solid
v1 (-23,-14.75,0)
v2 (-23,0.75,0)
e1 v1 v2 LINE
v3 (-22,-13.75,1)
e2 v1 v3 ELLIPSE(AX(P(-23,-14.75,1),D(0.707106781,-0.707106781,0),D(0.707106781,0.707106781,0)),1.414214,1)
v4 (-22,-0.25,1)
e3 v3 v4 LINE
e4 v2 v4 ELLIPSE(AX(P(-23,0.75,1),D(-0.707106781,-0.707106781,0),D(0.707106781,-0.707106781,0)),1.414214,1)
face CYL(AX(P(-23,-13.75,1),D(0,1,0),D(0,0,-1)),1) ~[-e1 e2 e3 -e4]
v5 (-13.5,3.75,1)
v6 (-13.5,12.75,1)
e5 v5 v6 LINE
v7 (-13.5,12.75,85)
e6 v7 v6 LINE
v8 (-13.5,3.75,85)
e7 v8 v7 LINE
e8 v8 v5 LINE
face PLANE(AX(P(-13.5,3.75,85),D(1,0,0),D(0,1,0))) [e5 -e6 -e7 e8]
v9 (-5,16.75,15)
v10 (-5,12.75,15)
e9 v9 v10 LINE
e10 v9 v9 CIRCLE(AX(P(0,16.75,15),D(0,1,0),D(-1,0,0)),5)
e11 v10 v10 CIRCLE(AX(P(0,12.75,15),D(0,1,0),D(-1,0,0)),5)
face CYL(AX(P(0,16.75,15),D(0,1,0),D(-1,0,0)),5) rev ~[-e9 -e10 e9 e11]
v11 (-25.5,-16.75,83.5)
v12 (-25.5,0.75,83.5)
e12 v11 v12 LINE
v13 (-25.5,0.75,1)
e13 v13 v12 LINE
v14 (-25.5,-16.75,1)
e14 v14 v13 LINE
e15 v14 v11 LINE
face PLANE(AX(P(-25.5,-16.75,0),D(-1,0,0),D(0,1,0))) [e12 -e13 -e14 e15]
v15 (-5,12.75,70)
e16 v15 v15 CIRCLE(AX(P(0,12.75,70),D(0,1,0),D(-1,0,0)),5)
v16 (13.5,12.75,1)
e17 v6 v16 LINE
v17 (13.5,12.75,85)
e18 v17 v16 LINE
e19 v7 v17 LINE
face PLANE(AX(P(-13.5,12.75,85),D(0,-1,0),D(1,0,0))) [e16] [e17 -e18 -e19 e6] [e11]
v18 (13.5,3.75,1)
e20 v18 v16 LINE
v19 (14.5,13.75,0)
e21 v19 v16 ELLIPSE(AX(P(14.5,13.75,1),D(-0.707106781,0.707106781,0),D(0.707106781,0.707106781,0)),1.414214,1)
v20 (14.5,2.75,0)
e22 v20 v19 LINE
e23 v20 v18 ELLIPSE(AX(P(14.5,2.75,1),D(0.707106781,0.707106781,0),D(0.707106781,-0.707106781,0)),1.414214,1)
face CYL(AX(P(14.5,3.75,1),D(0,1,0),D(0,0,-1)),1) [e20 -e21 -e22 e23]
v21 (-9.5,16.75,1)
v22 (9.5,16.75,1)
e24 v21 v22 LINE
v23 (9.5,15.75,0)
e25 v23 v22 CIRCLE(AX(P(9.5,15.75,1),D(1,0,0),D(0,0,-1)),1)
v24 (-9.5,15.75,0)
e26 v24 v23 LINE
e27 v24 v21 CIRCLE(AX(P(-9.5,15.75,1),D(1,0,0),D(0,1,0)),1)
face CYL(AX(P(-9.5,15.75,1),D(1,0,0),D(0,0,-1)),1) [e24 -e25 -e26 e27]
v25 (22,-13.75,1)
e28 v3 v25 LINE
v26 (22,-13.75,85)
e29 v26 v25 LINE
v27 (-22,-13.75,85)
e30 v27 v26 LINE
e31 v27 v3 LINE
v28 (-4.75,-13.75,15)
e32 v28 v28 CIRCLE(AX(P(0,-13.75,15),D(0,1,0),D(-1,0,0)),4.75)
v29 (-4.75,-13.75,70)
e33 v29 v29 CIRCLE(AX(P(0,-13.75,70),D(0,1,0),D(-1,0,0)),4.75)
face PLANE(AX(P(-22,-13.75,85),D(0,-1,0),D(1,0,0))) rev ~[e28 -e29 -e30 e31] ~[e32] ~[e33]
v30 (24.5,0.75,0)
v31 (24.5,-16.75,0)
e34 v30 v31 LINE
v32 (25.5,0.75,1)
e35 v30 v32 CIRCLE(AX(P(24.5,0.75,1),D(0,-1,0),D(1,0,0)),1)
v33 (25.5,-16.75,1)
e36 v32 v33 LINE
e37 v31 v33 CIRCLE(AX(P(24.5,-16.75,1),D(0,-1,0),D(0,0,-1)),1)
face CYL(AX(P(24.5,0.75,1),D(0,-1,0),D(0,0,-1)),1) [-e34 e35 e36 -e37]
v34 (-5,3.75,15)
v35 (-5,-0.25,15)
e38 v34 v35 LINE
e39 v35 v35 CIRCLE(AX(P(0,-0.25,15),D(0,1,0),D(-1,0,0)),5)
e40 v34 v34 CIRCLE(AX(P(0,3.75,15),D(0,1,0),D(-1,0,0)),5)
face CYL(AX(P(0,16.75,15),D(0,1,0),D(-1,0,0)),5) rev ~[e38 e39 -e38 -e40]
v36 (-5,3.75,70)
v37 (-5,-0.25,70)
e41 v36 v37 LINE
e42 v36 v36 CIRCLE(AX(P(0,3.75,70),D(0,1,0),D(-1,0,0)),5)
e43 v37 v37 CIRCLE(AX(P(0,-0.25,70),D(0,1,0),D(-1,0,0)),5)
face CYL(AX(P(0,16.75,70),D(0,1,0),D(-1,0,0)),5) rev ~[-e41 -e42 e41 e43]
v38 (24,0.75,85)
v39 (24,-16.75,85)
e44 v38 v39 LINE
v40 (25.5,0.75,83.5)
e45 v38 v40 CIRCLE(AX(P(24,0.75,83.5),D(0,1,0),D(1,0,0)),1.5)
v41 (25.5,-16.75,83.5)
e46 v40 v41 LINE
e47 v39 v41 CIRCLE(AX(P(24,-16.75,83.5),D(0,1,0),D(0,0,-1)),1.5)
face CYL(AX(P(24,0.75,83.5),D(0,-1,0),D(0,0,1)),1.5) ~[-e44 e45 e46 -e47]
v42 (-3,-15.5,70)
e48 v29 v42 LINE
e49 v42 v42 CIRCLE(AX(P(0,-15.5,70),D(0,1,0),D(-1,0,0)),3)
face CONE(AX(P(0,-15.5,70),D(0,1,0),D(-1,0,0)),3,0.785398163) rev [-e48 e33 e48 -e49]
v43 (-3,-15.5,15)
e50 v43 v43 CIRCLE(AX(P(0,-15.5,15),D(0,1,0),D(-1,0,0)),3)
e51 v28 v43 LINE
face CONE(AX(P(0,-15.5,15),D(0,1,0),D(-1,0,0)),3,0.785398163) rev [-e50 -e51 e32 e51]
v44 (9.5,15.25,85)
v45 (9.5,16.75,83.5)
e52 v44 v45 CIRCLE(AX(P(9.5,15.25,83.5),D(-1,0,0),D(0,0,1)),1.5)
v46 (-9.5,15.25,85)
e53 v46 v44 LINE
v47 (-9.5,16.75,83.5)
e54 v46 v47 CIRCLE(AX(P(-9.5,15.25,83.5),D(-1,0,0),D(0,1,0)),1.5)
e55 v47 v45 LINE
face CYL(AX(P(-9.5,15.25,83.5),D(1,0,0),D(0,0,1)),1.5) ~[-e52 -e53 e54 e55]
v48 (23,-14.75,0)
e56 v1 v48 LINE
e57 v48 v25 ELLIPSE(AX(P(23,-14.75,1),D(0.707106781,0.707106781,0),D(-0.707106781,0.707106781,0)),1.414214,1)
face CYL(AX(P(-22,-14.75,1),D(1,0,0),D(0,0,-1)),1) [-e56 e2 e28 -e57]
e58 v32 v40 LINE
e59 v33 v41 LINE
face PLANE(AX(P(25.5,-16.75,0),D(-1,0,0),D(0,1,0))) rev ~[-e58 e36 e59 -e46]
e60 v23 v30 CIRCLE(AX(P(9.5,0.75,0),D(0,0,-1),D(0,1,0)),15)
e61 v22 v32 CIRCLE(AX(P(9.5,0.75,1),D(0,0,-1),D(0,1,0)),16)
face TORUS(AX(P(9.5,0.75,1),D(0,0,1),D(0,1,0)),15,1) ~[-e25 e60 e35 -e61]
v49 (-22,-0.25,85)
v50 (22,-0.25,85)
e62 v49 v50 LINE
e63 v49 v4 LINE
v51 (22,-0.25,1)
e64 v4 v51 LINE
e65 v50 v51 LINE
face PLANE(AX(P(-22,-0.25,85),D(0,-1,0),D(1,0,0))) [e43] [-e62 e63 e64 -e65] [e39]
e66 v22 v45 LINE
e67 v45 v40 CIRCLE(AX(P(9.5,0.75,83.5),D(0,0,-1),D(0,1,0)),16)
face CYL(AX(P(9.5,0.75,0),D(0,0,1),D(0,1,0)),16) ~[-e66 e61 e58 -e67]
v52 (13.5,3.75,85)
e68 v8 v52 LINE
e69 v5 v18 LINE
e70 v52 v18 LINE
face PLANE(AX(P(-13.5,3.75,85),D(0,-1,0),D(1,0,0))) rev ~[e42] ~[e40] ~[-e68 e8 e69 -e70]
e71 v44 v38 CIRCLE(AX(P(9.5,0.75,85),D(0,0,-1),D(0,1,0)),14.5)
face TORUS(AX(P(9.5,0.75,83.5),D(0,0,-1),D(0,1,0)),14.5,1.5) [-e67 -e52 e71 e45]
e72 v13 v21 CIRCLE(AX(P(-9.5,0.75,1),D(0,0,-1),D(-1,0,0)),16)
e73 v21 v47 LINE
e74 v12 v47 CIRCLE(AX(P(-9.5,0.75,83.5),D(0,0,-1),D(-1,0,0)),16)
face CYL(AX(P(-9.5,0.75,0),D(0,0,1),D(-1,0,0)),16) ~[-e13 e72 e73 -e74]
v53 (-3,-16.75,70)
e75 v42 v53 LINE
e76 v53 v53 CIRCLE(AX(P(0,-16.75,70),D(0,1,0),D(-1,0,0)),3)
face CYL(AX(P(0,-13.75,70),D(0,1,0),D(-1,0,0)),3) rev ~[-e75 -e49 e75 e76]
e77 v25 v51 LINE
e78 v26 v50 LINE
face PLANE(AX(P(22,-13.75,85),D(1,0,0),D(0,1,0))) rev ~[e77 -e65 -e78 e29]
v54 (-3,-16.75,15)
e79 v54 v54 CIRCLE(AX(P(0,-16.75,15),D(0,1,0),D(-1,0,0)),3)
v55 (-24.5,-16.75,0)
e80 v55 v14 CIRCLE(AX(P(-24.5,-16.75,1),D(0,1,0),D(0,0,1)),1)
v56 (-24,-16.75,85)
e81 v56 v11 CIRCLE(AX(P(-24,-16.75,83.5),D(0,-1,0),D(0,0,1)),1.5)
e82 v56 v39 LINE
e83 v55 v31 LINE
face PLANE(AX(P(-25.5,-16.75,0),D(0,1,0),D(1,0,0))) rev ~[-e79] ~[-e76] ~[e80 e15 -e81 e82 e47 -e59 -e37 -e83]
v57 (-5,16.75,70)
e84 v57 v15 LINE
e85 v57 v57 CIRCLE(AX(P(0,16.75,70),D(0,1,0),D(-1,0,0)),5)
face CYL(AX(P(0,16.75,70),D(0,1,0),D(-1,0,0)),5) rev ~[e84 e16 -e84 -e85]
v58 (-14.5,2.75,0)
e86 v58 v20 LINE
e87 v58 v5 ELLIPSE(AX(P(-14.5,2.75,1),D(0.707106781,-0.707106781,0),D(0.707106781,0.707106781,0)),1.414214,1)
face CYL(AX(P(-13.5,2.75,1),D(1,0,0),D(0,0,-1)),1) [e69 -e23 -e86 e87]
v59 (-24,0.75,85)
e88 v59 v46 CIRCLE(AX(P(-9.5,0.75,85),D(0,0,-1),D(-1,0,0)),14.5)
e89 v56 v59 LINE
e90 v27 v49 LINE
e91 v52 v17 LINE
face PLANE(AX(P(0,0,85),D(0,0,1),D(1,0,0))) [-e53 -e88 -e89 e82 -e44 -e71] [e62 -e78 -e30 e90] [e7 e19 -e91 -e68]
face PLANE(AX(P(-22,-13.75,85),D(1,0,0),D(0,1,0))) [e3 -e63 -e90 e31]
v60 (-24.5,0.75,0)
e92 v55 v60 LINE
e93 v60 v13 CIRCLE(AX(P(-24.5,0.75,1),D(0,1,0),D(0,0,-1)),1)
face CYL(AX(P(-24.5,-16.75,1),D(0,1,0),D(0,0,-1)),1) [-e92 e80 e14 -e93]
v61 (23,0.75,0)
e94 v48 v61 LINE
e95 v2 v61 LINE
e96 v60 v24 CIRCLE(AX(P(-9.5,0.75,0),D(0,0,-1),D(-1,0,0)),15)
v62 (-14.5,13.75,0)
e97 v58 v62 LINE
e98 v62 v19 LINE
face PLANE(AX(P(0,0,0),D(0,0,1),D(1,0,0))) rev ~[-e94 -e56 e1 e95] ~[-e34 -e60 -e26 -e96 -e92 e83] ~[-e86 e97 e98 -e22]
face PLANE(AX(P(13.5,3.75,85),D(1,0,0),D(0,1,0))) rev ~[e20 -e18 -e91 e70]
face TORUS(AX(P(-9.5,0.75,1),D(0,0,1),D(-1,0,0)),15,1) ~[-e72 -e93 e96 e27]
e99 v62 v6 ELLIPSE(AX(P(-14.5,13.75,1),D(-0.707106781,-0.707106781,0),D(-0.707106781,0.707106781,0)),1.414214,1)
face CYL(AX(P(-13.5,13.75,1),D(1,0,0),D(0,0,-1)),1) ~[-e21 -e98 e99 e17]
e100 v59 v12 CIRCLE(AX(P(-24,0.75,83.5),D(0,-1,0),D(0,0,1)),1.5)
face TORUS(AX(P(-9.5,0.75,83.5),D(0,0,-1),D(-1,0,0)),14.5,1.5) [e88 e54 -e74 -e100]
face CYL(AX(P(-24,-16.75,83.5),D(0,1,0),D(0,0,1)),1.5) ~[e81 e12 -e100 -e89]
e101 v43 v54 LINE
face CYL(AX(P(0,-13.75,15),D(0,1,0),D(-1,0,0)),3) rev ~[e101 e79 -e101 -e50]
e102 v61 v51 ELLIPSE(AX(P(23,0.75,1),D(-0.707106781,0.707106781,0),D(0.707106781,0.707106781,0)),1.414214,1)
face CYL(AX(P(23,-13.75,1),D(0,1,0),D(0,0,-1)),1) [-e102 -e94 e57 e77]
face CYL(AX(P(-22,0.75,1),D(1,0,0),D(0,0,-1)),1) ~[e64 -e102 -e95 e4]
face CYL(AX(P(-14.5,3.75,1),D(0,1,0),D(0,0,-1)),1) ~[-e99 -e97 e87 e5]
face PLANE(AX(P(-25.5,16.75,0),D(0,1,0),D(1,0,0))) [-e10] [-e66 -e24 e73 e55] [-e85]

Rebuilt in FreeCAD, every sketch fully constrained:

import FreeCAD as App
import Part
import Sketcher

V = App.Vector


def edges_at(feature, points):
    """Names of the edges that pass closest to the given points."""
    edges = feature.Shape.Edges
    near = lambda p: min(range(len(edges)), key=lambda i: edges[i].distToShape(Part.Vertex(*p))[0])
    return sorted({f"Edge{near(p) + 1}" for p in points})

doc = App.newDocument("Part")
body = doc.addObject("PartDesign::Body", "Body")

# Sketch on XY plane
sketch1 = body.newObject("Sketcher::SketchObject", "Sketch")
sketch1.AttachmentSupport = (doc.getObject("XY_Plane"), [""])
sketch1.MapMode = "FlatFace"
sketch1.addGeometry([
    Part.LineSegment(V(-25.5, 16.75, 0), V(-25.5, -16.75, 0)),
    Part.LineSegment(V(-25.5, -16.75, 0), V(25.5, -16.75, 0)),
    Part.LineSegment(V(25.5, -16.75, 0), V(25.5, 16.75, 0)),
    Part.LineSegment(V(25.5, 16.75, 0), V(-25.5, 16.75, 0)),
], False)
sketch1.addConstraint([
    Sketcher.Constraint("Coincident", 0, 2, 1, 1),
    Sketcher.Constraint("Coincident", 1, 2, 2, 1),
    Sketcher.Constraint("Coincident", 2, 2, 3, 1),
    Sketcher.Constraint("Coincident", 3, 2, 0, 1),
    Sketcher.Constraint("Vertical", 0),
    Sketcher.Constraint("Horizontal", 1),
    Sketcher.Constraint("Vertical", 2),
    Sketcher.Constraint("Horizontal", 3),
    Sketcher.Constraint("Symmetric", 0, 2, 2, 2, -1, 1),
    Sketcher.Constraint("DistanceX", 1, 1, 1, 2, 51.0),
    Sketcher.Constraint("DistanceY", 0, 2, 0, 1, 33.5),
])
pad1 = body.newObject("PartDesign::Pad", "Pad")
pad1.Profile = sketch1
pad1.Length = 85

# Sketch on XY plane
sketch2 = body.newObject("Sketcher::SketchObject", "Sketch001")
sketch2.AttachmentSupport = (doc.getObject("XY_Plane"), [""])
sketch2.MapMode = "FlatFace"
sketch2.AttachmentOffset = App.Placement(V(0, 0, 85), App.Rotation())
sketch2.addGeometry([
    Part.LineSegment(V(-13.5, 12.75, 0), V(-13.5, 3.75, 0)),  # 0
    Part.LineSegment(V(-13.5, 3.75, 0), V(13.5, 3.75, 0)),  # 1
    Part.LineSegment(V(13.5, 3.75, 0), V(13.5, 12.75, 0)),  # 2
    Part.LineSegment(V(13.5, 12.75, 0), V(-13.5, 12.75, 0)),  # 3
    Part.LineSegment(V(-22, -0.25, 0), V(-22, -13.75, 0)),  # 4
    Part.LineSegment(V(-22, -13.75, 0), V(22, -13.75, 0)),  # 5
    Part.LineSegment(V(22, -13.75, 0), V(22, -0.25, 0)),  # 6
    Part.LineSegment(V(22, -0.25, 0), V(-22, -0.25, 0)),  # 7
], False)
sketch2.addConstraint([
    Sketcher.Constraint("Coincident", 0, 2, 1, 1),
    Sketcher.Constraint("Coincident", 1, 2, 2, 1),
    Sketcher.Constraint("Coincident", 2, 2, 3, 1),
    Sketcher.Constraint("Coincident", 3, 2, 0, 1),
    Sketcher.Constraint("Coincident", 4, 2, 5, 1),
    Sketcher.Constraint("Coincident", 5, 2, 6, 1),
    Sketcher.Constraint("Coincident", 6, 2, 7, 1),
    Sketcher.Constraint("Coincident", 7, 2, 4, 1),
    Sketcher.Constraint("Vertical", 0),
    Sketcher.Constraint("Horizontal", 1),
    Sketcher.Constraint("Vertical", 2),
    Sketcher.Constraint("Horizontal", 3),
    Sketcher.Constraint("Vertical", 4),
    Sketcher.Constraint("Horizontal", 5),
    Sketcher.Constraint("Vertical", 6),
    Sketcher.Constraint("Horizontal", 7),
    Sketcher.Constraint("DistanceX", 1, 1, 1, 2, 27.0),
    Sketcher.Constraint("DistanceX", 5, 1, 5, 2, 44.0),
    Sketcher.Constraint("DistanceY", 0, 2, 0, 1, 9.0),
    Sketcher.Constraint("DistanceY", 4, 2, 4, 1, 13.5),
    Sketcher.Constraint("DistanceX", 4, 2, -1, 1, 22.0),
    Sketcher.Constraint("DistanceY", 6, 2, 1, 2, 4.0),
    Sketcher.Constraint("DistanceX", 0, 2, -1, 1, 13.5),
    Sketcher.Constraint("DistanceY", -1, 1, 0, 2, 3.75),
])
pocket1 = body.newObject("PartDesign::Pocket", "Pocket")
pocket1.Profile = sketch2
pocket1.Length = 85
doc.recompute()

fillet = body.newObject("PartDesign::Fillet", "Fillet")
fillet.Base = (pocket1, edges_at(pocket1, [(25.5, 16.75, 42.5), (-25.5, 16.75, 42.5)]))
fillet.Radius = 16
doc.recompute()

fillet2 = body.newObject("PartDesign::Fillet", "Fillet001")
fillet2.Base = (fillet, edges_at(fillet, [
    (20.814, 12.064, 85),
    (25.5, -8, 85),
    (0, 16.75, 85),
    (-20.814, 12.064, 85),
    (-25.5, -8, 85),
]))
fillet2.Radius = 1.5

# Sketch on XZ plane
sketch3 = body.newObject("Sketcher::SketchObject", "Sketch002")
sketch3.AttachmentSupport = (doc.getObject("XZ_Plane"), [""])
sketch3.MapMode = "FlatFace"
sketch3.AttachmentOffset = App.Placement(V(0, 0, -16.75), App.Rotation())
sketch3.addGeometry([
    Part.Circle(V(0, 70, 0), V(0, 0, 1), 5),
    Part.Circle(V(0, 15, 0), V(0, 0, 1), 5),
], False)
sketch3.addConstraint([
    Sketcher.Constraint("Equal", 0, 1),
    Sketcher.Constraint("PointOnObject", 0, 3, -2),
    Sketcher.Constraint("PointOnObject", 1, 3, -2),
    Sketcher.Constraint("Diameter", 0, 10.0),
    Sketcher.Constraint("DistanceY", -1, 1, 0, 3, 70.0),
    Sketcher.Constraint("DistanceY", -1, 1, 1, 3, 15.0),
])
pocket2 = body.newObject("PartDesign::Pocket", "Pocket001")
pocket2.Profile = sketch3
pocket2.Length = 17
pocket2.Reversed = True

# Sketch on XZ plane
sketch4 = body.newObject("Sketcher::SketchObject", "Sketch003")
sketch4.AttachmentSupport = (doc.getObject("XZ_Plane"), [""])
sketch4.MapMode = "FlatFace"
sketch4.AttachmentOffset = App.Placement(V(0, 0, 13.75), App.Rotation())
sketch4.addGeometry([
    Part.Circle(V(0, 70, 0), V(0, 0, 1), 3),
    Part.Circle(V(0, 15, 0), V(0, 0, 1), 3),
], False)
sketch4.addConstraint([
    Sketcher.Constraint("Equal", 0, 1),
    Sketcher.Constraint("PointOnObject", 0, 3, -2),
    Sketcher.Constraint("PointOnObject", 1, 3, -2),
    Sketcher.Constraint("Diameter", 0, 6.0),
    Sketcher.Constraint("DistanceY", -1, 1, 0, 3, 70.0),
    Sketcher.Constraint("DistanceY", -1, 1, 1, 3, 15.0),
])
pocket3 = body.newObject("PartDesign::Pocket", "Pocket002")
pocket3.Profile = sketch4
pocket3.Type = "ThroughAll"
pocket3.Reversed = True
doc.recompute()

chamfer = body.newObject("PartDesign::Chamfer", "Chamfer")
chamfer.Base = (pocket3, edges_at(pocket3, [(3, -13.75, 15), (3, -13.75, 70)]))
chamfer.Size = 1.75
doc.recompute()

fillet3 = body.newObject("PartDesign::Fillet", "Fillet002")
fillet3.Base = (chamfer, edges_at(chamfer, [(20.814, 12.064, 0), (-20.814, 12.064, 0)]))
fillet3.Radius = 1
doc.recompute()

fillet4 = body.newObject("PartDesign::Fillet", "Fillet003")
fillet4.Base = (fillet3, edges_at(fillet3, [
    (0, 3.75, 0),
    (-13.5, 8.25, 0),
    (0, 12.75, 0),
    (13.5, 8.25, 0),
    (0, -0.25, 0),
    (22, -7, 0),
    (0, -13.75, 0),
    (-22, -7, 0),
]))
fillet4.Radius = 1

doc.recompute()
